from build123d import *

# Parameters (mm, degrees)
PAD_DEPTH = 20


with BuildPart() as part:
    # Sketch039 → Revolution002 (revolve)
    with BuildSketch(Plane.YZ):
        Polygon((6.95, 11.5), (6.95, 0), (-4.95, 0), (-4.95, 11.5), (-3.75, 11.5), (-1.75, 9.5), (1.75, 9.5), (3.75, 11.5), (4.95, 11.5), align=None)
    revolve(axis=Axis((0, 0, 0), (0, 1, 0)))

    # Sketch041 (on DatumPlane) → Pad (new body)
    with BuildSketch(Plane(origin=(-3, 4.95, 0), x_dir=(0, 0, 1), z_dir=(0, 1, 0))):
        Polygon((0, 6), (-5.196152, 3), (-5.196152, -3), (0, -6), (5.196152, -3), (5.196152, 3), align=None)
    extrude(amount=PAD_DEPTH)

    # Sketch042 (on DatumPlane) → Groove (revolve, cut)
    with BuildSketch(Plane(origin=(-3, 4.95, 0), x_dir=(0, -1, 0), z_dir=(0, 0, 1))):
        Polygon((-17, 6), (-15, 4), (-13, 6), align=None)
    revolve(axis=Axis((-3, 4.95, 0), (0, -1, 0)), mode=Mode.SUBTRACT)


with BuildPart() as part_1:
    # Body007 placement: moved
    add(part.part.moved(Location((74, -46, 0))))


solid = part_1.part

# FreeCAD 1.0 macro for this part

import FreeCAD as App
import Part
import Sketcher

V = App.Vector
Q = App.Units.Quantity

doc = App.newDocument("Part")
params = doc.addObject("Spreadsheet::Sheet", "Params")
for row, (alias, value) in enumerate([
    ("sketch1_width", "3.2 mm"),
    ("sketch1_width2", "3.5 mm"),
    ("sketch1_width3", "1.2 mm"),
    ("sketch1_width4", "11.9 mm"),
    ("sketch1_height", "11.5 mm"),
    ("revolution_angle", "360 deg"),
    ("sketch2_width", "6 mm"),
    ("sketch2_length", "6 mm"),
    ("pad1_length", "20 mm"),
    ("sketch3_height", "4 mm"),
    ("groove_angle", "360 deg"),
], start=1):
    params.set(f"A{row}", alias)
    params.set(f"B{row}", "=" + value)
    params.setAlias(f"B{row}", alias)

body = doc.addObject("PartDesign::Body", "Body")

# Sketch on YZ plane
sketch1 = body.newObject("Sketcher::SketchObject", "Sketch")
sketch1.AttachmentSupport = (doc.getObject("YZ_Plane"), [""])
sketch1.MapMode = "FlatFace"
sketch1.addGeometry(Part.LineSegment(V(7, 0, 0), V(7, 11.5, 0)), False)
sketch1.addGeometry(Part.LineSegment(V(7, 11.5, 0), V(3.8, 11.5, 0)), False)
sketch1.addGeometry(Part.LineSegment(V(3.8, 11.5, 0), V(1.8, 9.5, 0)), False)
sketch1.addGeometry(Part.LineSegment(V(1.8, 9.5, 0), V(-1.8, 9.5, 0)), False)
sketch1.addGeometry(Part.LineSegment(V(-1.8, 9.5, 0), V(-3.8, 11.5, 0)), False)
sketch1.addGeometry(Part.LineSegment(V(-3.8, 11.5, 0), V(-5, 11.5, 0)), False)
sketch1.addGeometry(Part.LineSegment(V(-5, 11.5, 0), V(-5, 0, 0)), False)
sketch1.addGeometry(Part.LineSegment(V(-5, 0, 0), V(7, 0, 0)), False)
sketch1.addConstraint(Sketcher.Constraint("Coincident", 0, 2, 1, 1))
sketch1.addConstraint(Sketcher.Constraint("Coincident", 1, 2, 2, 1))
sketch1.addConstraint(Sketcher.Constraint("Coincident", 2, 2, 3, 1))
sketch1.addConstraint(Sketcher.Constraint("Coincident", 3, 2, 4, 1))
sketch1.addConstraint(Sketcher.Constraint("Coincident", 4, 2, 5, 1))
sketch1.addConstraint(Sketcher.Constraint("Coincident", 5, 2, 6, 1))
sketch1.addConstraint(Sketcher.Constraint("Coincident", 6, 2, 7, 1))
sketch1.addConstraint(Sketcher.Constraint("Coincident", 7, 2, 0, 1))
sketch1.addConstraint(Sketcher.Constraint("Vertical", 0))
sketch1.addConstraint(Sketcher.Constraint("Horizontal", 1))
sketch1.addConstraint(Sketcher.Constraint("Horizontal", 3))
sketch1.addConstraint(Sketcher.Constraint("Horizontal", 5))
sketch1.addConstraint(Sketcher.Constraint("Vertical", 6))
sketch1.addConstraint(Sketcher.Constraint("Horizontal", 7))
sketch1.addConstraint(Sketcher.Constraint("Symmetric", 1, 2, 4, 2, -2))
sketch1.addConstraint(Sketcher.Constraint("PointOnObject", 6, 2, -1))
sketch1.addConstraint(Sketcher.Constraint("Perpendicular", 2, 4))
sketch1.addConstraint(Sketcher.Constraint("Equal", 2, 4))
sketch1.addConstraint(Sketcher.Constraint("DistanceX", 1, 2, 1, 1, Q("3.2 mm")))
sketch1.addConstraint(Sketcher.Constraint("DistanceX", 3, 2, 3, 1, Q("3.5 mm")))
sketch1.addConstraint(Sketcher.Constraint("DistanceX", 5, 2, 5, 1, Q("1.2 mm")))
sketch1.addConstraint(Sketcher.Constraint("DistanceX", 7, 1, 7, 2, Q("11.9 mm")))
sketch1.addConstraint(Sketcher.Constraint("DistanceY", 0, 1, 0, 2, Q("11.5 mm")))
sketch1.setExpression("Constraints[18]", "Params.sketch1_width")
sketch1.setExpression("Constraints[19]", "Params.sketch1_width2")
sketch1.setExpression("Constraints[20]", "Params.sketch1_width3")
sketch1.setExpression("Constraints[21]", "Params.sketch1_width4")
sketch1.setExpression("Constraints[22]", "Params.sketch1_height")
revolution = body.newObject("PartDesign::Revolution", "Revolution")
revolution.Profile = sketch1
revolution.ReferenceAxis = (sketch1, ["H_Axis"])
revolution.setExpression("Angle", "Params.revolution_angle")

# Sketch on XZ plane
sketch2 = body.newObject("Sketcher::SketchObject", "Sketch001")
sketch2.AttachmentSupport = (doc.getObject("XZ_Plane"), [""])
sketch2.MapMode = "FlatFace"
sketch2.AttachmentOffset = App.Placement(V(0, 0, -4.95), App.Rotation())
sketch2.addGeometry(Part.LineSegment(V(3, 0, 0), V(0, -5, 0)), False)
sketch2.addGeometry(Part.LineSegment(V(0, -5, 0), V(-6, -5, 0)), False)
sketch2.addGeometry(Part.LineSegment(V(-6, -5, 0), V(-9, 0, 0)), False)
sketch2.addGeometry(Part.LineSegment(V(-9, 0, 0), V(-6, 5, 0)), False)
sketch2.addGeometry(Part.LineSegment(V(-6, 5, 0), V(0, 5, 0)), False)
sketch2.addGeometry(Part.LineSegment(V(0, 5, 0), V(3, 0, 0)), False)
sketch2.addConstraint(Sketcher.Constraint("Coincident", 0, 2, 1, 1))
sketch2.addConstraint(Sketcher.Constraint("Coincident", 1, 2, 2, 1))
sketch2.addConstraint(Sketcher.Constraint("Coincident", 2, 2, 3, 1))
sketch2.addConstraint(Sketcher.Constraint("Coincident", 3, 2, 4, 1))
sketch2.addConstraint(Sketcher.Constraint("Coincident", 4, 2, 5, 1))
sketch2.addConstraint(Sketcher.Constraint("Coincident", 5, 2, 0, 1))
sketch2.addConstraint(Sketcher.Constraint("Horizontal", 1))
sketch2.addConstraint(Sketcher.Constraint("Horizontal", 4))
sketch2.addConstraint(Sketcher.Constraint("Symmetric", 0, 2, 4, 2, -1, 1))
sketch2.addConstraint(Sketcher.Constraint("PointOnObject", 0, 2, -2))
sketch2.addConstraint(Sketcher.Constraint("PointOnObject", 2, 2, -1))
sketch2.addConstraint(Sketcher.Constraint("PointOnObject", 5, 2, -1))
sketch2.addConstraint(Sketcher.Constraint("Parallel", 0, 3))
sketch2.addConstraint(Sketcher.Constraint("Parallel", 2, 5))
sketch2.addConstraint(Sketcher.Constraint("DistanceX", 1, 2, 1, 1, Q("6 mm")))
sketch2.addConstraint(Sketcher.Constraint("Angle", 0, Q("-120.000002 deg")))
sketch2.addConstraint(Sketcher.Constraint("Distance", 0, Q("6 mm")))
sketch2.setExpression("Constraints[14]", "Params.sketch2_width")
sketch2.setExpression("Constraints[16]", "Params.sketch2_length")
pad1 = body.newObject("PartDesign::Pad", "Pad")
pad1.Profile = sketch2
pad1.setExpression("Length", "Params.pad1_length")
pad1.Reversed = True

# Sketch on XY plane
sketch3 = body.newObject("Sketcher::SketchObject", "Sketch002")
sketch3.AttachmentSupport = (doc.getObject("XY_Plane"), [""])
sketch3.MapMode = "FlatFace"
sketch3.addGeometry(Part.LineSegment(V(3, 21.9, 0), V(1, 19.9, 0)), False)
sketch3.addGeometry(Part.LineSegment(V(1, 19.9, 0), V(3, 17.9, 0)), False)
sketch3.addGeometry(Part.LineSegment(V(3, 17.9, 0), V(3, 21.9, 0)), False)
sketch3.addGeometry(Part.LineSegment(V(-3, 21.9, 0), V(-3, 17.9, 0)), True)  # axis
sketch3.addConstraint(Sketcher.Constraint("Coincident", 0, 2, 1, 1))
sketch3.addConstraint(Sketcher.Constraint("Coincident", 1, 2, 2, 1))
sketch3.addConstraint(Sketcher.Constraint("Coincident", 2, 2, 0, 1))
sketch3.addConstraint(Sketcher.Constraint("Vertical", 2))
sketch3.addConstraint(Sketcher.Constraint("Vertical", 3))
sketch3.addConstraint(Sketcher.Constraint("Symmetric", 2, 2, 3, 1, -2))
sketch3.addConstraint(Sketcher.Constraint("Perpendicular", 0, 1))
sketch3.addConstraint(Sketcher.Constraint("Horizontal", 1, 2, 3, 2))
sketch3.addConstraint(Sketcher.Constraint("Equal", 0, 1))
sketch3.addConstraint(Sketcher.Constraint("DistanceY", 2, 1, 2, 2, Q("4 mm")))
sketch3.addConstraint(Sketcher.Constraint("DistanceX", -1, 1, 0, 2, Q("1 mm")))
sketch3.addConstraint(Sketcher.Constraint("DistanceY", -1, 1, 0, 2, Q("19.95 mm")))
sketch3.setExpression("Constraints[9]", "Params.sketch3_height")
groove = body.newObject("PartDesign::Groove", "Groove")
groove.Profile = sketch3
groove.ReferenceAxis = (sketch3, ["Axis0"])
groove.setExpression("Angle", "Params.groove_angle")
body2 = doc.addObject("PartDesign::Body", "Body001")
doc.recompute()

body.Placement = App.Placement(V(74, -46, 0), App.Rotation(V(0, 0, 1), 0))
boolean = body2.newObject("PartDesign::Boolean", "Boolean")
boolean.Type = "Fuse"
boolean.addObjects([body])

doc.recompute()
